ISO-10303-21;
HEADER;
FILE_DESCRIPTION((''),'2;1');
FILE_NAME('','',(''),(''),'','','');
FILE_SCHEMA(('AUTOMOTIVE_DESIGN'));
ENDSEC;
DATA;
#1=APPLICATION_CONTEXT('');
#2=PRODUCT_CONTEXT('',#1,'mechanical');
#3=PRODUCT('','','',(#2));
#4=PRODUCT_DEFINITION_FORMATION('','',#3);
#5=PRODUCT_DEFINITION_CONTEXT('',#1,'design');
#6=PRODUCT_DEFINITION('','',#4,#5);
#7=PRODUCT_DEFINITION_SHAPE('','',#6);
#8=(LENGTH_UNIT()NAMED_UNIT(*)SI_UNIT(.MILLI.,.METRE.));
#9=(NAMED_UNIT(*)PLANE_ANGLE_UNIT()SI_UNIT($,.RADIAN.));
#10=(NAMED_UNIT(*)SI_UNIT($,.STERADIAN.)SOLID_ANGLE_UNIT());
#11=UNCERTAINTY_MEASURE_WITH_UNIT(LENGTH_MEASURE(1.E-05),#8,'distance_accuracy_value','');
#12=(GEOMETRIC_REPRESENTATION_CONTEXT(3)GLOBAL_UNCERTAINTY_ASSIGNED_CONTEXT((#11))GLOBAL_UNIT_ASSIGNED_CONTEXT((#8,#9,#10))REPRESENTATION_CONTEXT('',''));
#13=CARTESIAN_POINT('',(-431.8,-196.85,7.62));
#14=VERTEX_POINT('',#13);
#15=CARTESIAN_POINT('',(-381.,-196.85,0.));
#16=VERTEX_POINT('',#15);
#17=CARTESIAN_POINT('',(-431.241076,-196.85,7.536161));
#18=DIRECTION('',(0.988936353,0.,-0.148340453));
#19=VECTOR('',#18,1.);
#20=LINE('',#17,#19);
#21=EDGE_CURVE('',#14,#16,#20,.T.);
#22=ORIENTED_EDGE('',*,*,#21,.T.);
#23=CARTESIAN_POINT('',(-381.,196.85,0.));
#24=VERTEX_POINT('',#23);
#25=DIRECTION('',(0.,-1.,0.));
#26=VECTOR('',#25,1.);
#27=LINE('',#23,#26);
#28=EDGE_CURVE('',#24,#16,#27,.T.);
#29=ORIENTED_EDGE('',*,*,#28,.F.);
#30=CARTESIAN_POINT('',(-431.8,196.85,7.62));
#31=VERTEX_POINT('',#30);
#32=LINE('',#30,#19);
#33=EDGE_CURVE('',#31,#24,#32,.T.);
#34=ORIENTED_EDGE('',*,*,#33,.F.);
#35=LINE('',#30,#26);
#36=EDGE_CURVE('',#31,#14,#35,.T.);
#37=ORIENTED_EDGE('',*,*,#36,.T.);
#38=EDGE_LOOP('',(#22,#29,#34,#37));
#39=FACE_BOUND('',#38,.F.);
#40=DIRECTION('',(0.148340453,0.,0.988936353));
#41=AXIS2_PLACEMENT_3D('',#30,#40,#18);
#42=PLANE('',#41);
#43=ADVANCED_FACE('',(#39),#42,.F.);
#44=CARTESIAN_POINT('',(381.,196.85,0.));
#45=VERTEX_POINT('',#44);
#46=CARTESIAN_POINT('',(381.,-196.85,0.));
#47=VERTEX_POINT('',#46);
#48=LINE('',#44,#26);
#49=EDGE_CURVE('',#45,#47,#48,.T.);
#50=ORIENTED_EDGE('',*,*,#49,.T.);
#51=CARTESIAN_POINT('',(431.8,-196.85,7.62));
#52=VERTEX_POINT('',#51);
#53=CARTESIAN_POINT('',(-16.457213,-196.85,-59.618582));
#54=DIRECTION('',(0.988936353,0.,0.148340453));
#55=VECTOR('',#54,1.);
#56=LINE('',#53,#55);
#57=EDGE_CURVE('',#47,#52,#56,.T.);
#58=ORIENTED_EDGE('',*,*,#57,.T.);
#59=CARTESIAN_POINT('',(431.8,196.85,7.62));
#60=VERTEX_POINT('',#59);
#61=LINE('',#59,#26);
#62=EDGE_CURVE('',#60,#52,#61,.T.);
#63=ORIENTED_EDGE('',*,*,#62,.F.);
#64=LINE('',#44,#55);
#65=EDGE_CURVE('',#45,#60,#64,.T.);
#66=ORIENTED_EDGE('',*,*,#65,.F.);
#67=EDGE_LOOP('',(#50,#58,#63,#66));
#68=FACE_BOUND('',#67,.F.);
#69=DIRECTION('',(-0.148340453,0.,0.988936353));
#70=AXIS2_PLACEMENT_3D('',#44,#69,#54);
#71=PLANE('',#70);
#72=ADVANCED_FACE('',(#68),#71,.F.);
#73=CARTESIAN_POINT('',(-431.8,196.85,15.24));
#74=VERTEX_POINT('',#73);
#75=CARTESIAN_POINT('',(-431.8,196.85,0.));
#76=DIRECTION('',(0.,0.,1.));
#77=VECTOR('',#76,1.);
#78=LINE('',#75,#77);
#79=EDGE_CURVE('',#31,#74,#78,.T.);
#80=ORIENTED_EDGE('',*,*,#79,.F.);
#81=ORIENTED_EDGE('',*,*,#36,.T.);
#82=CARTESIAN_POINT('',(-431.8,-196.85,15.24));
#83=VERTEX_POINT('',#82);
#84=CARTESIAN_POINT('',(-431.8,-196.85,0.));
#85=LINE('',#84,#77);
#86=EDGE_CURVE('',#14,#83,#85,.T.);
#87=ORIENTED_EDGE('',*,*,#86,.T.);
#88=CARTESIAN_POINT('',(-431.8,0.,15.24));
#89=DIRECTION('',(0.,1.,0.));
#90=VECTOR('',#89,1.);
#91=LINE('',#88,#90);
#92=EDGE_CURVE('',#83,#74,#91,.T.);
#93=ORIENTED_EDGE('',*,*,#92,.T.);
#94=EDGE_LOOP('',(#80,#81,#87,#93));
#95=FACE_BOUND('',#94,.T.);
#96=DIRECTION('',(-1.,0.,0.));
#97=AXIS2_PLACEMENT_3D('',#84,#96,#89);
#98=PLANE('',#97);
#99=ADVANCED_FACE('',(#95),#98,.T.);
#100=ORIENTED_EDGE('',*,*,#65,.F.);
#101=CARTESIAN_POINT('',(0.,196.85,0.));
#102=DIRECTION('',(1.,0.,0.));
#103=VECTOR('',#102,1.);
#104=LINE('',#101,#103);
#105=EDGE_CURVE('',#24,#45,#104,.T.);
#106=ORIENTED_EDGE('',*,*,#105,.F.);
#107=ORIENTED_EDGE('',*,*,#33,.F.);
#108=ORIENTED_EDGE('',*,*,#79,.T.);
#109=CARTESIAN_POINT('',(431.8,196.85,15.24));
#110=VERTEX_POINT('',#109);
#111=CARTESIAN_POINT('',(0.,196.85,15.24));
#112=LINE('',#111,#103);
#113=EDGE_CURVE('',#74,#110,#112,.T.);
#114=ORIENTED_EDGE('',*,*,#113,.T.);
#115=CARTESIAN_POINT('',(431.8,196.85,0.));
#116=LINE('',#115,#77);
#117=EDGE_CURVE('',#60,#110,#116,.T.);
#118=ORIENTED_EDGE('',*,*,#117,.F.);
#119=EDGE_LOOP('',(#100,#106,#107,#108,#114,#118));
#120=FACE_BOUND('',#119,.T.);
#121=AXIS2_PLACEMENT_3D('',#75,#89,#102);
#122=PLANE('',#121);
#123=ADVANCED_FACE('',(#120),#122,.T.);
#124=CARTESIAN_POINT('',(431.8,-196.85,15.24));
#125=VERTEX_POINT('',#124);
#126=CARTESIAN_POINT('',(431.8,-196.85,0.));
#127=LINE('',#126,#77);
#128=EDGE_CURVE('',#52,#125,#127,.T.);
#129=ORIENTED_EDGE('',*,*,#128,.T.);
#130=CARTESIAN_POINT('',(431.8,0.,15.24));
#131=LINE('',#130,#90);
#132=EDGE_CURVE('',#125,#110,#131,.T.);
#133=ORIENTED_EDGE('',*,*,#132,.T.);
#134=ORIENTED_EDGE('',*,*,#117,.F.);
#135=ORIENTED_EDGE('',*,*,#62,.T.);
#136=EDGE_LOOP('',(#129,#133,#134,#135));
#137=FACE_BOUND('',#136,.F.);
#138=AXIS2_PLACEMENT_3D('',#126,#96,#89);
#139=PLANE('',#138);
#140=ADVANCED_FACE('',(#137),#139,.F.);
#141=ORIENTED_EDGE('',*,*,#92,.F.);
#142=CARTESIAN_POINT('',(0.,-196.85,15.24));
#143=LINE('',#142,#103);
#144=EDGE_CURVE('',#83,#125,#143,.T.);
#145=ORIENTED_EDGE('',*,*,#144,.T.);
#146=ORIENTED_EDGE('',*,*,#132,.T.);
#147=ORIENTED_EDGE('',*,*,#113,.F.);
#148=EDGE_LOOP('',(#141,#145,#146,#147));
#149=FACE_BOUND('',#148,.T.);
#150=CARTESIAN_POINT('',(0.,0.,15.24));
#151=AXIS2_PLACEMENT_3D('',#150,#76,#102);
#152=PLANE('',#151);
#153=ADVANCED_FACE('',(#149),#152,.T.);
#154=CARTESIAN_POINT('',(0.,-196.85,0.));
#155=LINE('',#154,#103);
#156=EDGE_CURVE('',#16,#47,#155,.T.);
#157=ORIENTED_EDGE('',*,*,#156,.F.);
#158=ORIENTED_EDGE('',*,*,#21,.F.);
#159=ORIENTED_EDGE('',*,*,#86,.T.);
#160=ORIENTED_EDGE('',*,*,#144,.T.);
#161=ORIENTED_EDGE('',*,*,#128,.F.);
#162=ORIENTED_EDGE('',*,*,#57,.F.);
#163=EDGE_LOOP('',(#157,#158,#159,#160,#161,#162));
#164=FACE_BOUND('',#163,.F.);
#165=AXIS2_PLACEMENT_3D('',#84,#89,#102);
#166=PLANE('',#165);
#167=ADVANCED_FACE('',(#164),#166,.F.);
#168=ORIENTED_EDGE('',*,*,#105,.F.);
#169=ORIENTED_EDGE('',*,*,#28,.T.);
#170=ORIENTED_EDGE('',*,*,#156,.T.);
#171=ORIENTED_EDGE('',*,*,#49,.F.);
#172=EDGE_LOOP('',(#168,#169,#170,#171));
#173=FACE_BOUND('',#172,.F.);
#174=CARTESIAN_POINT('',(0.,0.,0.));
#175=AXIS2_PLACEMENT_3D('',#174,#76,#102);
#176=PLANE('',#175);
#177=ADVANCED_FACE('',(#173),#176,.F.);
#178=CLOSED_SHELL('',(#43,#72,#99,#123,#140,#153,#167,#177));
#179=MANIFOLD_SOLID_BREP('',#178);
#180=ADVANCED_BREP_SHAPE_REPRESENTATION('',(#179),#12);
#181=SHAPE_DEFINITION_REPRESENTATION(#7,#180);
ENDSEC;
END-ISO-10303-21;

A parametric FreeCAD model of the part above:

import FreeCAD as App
import Part
import Sketcher
Q = App.Units.Quantity

doc = App.newDocument("Part")
body = doc.addObject("PartDesign::Body", "Body")

# Sketch on XY plane
sketch1 = doc.addObject("Sketcher::SketchObject", "Sketch")
body.addObject(sketch1)
sketch1.AttachmentSupport = (doc.XY_Plane, [""])
sketch1.MapMode = "FlatFace"
sketch1.addGeometry([
    Part.LineSegment(App.Vector(-432, 197, 0), App.Vector(-432, -197, 0)),
    Part.LineSegment(App.Vector(-432, -197, 0), App.Vector(432, -197, 0)),
    Part.LineSegment(App.Vector(432, -197, 0), App.Vector(432, 197, 0)),
    Part.LineSegment(App.Vector(432, 197, 0), App.Vector(-432, 197, 0)),
], False)
sketch1.addConstraint([
    Sketcher.Constraint("Coincident", 0, 2, 1, 1),
    Sketcher.Constraint("Coincident", 1, 2, 2, 1),
    Sketcher.Constraint("Coincident", 2, 2, 3, 1),
    Sketcher.Constraint("Coincident", 3, 2, 0, 1),
    Sketcher.Constraint("Vertical", 0),
    Sketcher.Constraint("Horizontal", 1),
    Sketcher.Constraint("Vertical", 2),
    Sketcher.Constraint("Horizontal", 3),
    Sketcher.Constraint("Symmetric", 0, 2, 2, 2, -1, 1),
    Sketcher.Constraint("DistanceX", 1, 1, 1, 2, Q("34 in")),
    Sketcher.Constraint("DistanceY", 0, 2, 0, 1, Q("15.5 in")),
])
pad1 = doc.addObject("PartDesign::Pad", "Pad")
body.addObject(pad1)
pad1.Profile = sketch1
pad1.Length = Q("0.6 in")

# Sketch on XZ plane
sketch2 = doc.addObject("Sketcher::SketchObject", "Sketch001")
body.addObject(sketch2)
sketch2.AttachmentSupport = (doc.XZ_Plane, [""])
sketch2.MapMode = "FlatFace"
sketch2.AttachmentOffset = App.Placement(App.Vector(0, 0, -7.75 * 25.4), App.Rotation())
sketch2.addGeometry([
    Part.LineSegment(App.Vector(381, 0, 0), App.Vector(432, 8, 0)),  # 0
    Part.LineSegment(App.Vector(432, 8, 0), App.Vector(432, 0, 0)),  # 1
    Part.LineSegment(App.Vector(432, 0, 0), App.Vector(381, 0, 0)),  # 2
    Part.LineSegment(App.Vector(-432, 8, 0), App.Vector(-381, 0, 0)),  # 3
    Part.LineSegment(App.Vector(-381, 0, 0), App.Vector(-432, 0, 0)),  # 4
    Part.LineSegment(App.Vector(-432, 0, 0), App.Vector(-432, 8, 0)),  # 5
], False)
sketch2.addConstraint([
    Sketcher.Constraint("Coincident", 0, 2, 1, 1),
    Sketcher.Constraint("Coincident", 1, 2, 2, 1),
    Sketcher.Constraint("Coincident", 2, 2, 0, 1),
    Sketcher.Constraint("Coincident", 3, 2, 4, 1),
    Sketcher.Constraint("Coincident", 4, 2, 5, 1),
    Sketcher.Constraint("Coincident", 5, 2, 3, 1),
    Sketcher.Constraint("Vertical", 1),
    Sketcher.Constraint("Horizontal", 2),
    Sketcher.Constraint("Horizontal", 4),
    Sketcher.Constraint("Vertical", 5),
    Sketcher.Constraint("Symmetric", 2, 2, 3, 2, -1, 1),
    Sketcher.Constraint("Symmetric", 1, 2, 4, 2, -2),
    Sketcher.Constraint("Horizontal", 0, 2, 5, 2),
    Sketcher.Constraint("DistanceX", 2, 2, 2, 1, Q("2 in")),
    Sketcher.Constraint("DistanceY", 1, 2, 1, 1, Q("0.3 in")),
    Sketcher.Constraint("DistanceX", -1, 1, 0, 2, Q("17 in")),
])
pocket1 = doc.addObject("PartDesign::Pocket", "Pocket")
body.addObject(pocket1)
pocket1.Profile = sketch2
pocket1.Type = "ThroughAll"
pocket1.Reversed = True

doc.recompute()
